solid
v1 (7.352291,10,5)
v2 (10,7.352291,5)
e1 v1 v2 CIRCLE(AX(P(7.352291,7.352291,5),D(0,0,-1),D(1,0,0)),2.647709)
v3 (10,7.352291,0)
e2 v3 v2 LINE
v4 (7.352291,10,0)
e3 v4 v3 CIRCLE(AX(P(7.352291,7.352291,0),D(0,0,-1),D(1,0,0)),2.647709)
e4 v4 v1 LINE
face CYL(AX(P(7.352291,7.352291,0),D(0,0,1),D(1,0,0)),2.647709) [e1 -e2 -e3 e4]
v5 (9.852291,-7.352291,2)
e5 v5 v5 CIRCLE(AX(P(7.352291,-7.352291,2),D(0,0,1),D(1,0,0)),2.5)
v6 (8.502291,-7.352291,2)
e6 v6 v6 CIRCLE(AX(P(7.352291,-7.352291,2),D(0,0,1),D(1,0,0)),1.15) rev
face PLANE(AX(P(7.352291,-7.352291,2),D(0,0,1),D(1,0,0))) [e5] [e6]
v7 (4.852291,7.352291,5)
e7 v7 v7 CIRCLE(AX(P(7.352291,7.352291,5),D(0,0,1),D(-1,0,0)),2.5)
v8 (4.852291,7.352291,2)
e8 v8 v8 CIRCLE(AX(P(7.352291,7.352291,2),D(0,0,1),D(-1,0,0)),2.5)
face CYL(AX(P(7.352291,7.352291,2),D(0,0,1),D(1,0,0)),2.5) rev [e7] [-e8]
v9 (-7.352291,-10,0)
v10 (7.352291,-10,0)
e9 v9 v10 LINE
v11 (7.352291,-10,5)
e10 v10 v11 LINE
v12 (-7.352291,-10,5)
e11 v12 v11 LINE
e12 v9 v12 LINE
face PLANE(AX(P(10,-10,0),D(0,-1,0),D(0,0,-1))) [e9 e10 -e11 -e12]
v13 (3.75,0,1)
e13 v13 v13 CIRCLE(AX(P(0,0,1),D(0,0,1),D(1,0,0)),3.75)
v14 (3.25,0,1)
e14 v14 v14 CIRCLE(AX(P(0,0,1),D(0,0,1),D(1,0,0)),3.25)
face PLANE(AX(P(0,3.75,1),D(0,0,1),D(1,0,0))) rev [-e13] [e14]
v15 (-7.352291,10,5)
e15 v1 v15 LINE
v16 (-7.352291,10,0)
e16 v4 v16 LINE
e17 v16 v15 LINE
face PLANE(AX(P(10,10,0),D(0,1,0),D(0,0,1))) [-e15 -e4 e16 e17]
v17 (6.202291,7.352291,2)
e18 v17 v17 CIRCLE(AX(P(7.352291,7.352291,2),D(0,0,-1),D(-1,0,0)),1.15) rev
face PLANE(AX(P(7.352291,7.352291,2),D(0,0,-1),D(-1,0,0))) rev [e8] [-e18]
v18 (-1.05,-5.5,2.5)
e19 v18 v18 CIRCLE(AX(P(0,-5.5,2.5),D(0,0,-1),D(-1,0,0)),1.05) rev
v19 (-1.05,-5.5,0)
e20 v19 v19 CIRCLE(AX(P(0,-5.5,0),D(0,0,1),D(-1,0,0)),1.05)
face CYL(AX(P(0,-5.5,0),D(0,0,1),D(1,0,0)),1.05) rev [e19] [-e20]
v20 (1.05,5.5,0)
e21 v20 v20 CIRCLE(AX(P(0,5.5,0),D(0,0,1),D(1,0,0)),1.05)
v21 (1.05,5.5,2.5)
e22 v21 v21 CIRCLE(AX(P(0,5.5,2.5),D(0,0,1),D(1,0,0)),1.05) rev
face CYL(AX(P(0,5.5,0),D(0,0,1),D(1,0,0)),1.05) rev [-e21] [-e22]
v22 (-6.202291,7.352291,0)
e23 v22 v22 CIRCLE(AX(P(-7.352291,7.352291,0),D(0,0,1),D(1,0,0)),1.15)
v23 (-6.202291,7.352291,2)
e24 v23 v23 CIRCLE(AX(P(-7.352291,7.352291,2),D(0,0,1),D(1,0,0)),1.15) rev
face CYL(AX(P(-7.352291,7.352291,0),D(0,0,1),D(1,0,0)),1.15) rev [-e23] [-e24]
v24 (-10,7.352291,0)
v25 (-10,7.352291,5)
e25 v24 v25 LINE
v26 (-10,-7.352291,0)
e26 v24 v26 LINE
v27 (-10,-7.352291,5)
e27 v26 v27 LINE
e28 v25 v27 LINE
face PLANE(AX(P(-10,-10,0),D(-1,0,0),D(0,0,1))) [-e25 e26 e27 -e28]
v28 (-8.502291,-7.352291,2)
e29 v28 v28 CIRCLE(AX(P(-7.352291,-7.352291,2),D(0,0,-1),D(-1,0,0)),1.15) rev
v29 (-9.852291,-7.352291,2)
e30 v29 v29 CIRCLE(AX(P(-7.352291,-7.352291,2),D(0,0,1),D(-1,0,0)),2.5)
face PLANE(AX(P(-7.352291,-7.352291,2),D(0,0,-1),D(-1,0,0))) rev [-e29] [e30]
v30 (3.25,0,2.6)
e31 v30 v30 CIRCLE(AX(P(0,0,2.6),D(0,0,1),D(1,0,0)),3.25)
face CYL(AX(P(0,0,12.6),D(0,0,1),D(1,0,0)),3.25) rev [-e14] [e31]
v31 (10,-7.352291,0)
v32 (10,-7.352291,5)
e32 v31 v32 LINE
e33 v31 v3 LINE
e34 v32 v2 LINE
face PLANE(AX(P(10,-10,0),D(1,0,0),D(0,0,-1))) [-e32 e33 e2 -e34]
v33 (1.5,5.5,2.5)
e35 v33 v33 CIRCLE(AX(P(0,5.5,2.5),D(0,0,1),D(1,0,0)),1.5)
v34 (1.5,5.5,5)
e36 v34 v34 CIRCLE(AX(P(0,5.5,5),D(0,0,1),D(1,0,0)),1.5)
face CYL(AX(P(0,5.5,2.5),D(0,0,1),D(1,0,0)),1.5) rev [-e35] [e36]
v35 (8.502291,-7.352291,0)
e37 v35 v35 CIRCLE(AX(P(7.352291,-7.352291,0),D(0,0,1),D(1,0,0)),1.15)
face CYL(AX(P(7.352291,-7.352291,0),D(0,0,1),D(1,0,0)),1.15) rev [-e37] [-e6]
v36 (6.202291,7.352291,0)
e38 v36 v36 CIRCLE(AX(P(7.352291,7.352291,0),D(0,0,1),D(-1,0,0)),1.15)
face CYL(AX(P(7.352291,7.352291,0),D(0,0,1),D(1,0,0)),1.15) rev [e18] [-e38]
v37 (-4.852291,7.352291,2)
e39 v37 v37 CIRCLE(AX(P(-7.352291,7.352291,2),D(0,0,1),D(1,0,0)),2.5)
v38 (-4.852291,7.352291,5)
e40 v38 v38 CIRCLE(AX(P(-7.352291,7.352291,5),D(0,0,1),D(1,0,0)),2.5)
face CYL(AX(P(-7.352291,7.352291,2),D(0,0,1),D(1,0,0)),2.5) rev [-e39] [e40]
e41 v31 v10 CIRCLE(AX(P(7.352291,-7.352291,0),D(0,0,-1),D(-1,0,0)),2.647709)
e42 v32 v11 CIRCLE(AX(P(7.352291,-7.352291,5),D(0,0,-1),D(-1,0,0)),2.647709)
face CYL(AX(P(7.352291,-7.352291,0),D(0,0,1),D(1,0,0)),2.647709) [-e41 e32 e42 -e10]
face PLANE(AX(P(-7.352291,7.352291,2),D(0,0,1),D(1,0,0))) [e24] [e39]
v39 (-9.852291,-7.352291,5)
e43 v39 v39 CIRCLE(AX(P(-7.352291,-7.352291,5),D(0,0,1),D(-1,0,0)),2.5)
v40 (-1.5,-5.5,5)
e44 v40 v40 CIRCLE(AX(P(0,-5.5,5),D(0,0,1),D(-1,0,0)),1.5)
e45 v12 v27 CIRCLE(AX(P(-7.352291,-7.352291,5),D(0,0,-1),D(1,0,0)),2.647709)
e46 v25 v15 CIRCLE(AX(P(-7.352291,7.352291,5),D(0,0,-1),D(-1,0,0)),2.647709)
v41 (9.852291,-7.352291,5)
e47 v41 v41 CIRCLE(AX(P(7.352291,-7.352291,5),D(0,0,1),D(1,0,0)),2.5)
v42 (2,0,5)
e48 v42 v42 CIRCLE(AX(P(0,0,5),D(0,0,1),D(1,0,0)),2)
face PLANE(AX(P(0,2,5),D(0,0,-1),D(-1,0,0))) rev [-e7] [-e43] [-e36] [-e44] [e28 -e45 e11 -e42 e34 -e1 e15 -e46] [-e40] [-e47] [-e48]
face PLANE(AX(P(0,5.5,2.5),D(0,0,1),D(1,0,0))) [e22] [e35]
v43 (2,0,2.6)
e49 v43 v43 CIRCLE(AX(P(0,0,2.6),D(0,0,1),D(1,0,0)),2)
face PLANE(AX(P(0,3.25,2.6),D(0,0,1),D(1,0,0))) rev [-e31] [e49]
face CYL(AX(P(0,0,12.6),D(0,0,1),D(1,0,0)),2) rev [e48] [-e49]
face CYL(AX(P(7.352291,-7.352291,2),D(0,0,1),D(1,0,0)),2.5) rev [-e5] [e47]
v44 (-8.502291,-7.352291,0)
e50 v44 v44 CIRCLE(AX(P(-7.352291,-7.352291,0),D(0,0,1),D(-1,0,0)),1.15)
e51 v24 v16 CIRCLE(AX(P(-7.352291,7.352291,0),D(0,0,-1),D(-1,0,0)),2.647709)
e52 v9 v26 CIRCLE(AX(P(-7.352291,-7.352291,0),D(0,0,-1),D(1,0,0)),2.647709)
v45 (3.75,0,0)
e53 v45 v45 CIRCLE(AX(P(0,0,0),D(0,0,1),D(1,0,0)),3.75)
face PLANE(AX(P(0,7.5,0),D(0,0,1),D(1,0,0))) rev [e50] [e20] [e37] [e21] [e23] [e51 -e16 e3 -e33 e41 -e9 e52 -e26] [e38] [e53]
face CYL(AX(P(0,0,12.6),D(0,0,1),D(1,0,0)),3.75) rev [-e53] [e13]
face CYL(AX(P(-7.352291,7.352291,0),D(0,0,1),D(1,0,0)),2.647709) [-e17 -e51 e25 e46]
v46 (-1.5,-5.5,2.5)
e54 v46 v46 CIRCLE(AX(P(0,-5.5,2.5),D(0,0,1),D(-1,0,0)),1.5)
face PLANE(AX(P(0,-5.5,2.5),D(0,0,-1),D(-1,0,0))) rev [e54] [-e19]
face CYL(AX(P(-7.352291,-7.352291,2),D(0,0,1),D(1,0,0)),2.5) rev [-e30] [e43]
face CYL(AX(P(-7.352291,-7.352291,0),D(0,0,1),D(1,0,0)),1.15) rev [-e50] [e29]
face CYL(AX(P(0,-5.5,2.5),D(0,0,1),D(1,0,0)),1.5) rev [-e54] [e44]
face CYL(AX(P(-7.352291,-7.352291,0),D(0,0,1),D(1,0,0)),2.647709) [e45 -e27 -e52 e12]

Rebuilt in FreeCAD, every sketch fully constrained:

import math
import FreeCAD as App
import Part
import Sketcher

doc = App.newDocument("Part")
params = doc.addObject("Spreadsheet::Sheet", "Params")
for row, (alias, value) in enumerate([
    ("sketch1_height", "1 mm"),
    ("sketch1_height2", "5 mm"),
    ("sketch1_width", "5.5 mm"),
    ("sketch1_width2", "0.5 mm"),
    ("sketch1_height3", "2.4 mm"),
    ("revolution_angle", "360 deg"),
    ("sketch2_diameter", "15 mm"),
    ("sketch2_width", "20 mm"),
    ("pad1_length", "5 mm"),
    ("sketch3_diameter", "2.1 mm"),
    ("sketch4_diameter", "3 mm"),
    ("pocket2_length", "2.5 mm"),
    ("sketch6_diameter", "2.3 mm"),
    ("sketch7_diameter", "5 mm"),
    ("pocket5_length", "3 mm"),
], start=1):
    params.set(f"A{row}", alias)
    params.set(f"B{row}", "=" + value)
    params.setAlias(f"B{row}", alias)

body = doc.addObject("PartDesign::Body", "Body")

sketch1 = body.newObject("Sketcher::SketchObject", "Sketch")
sketch1.AttachmentSupport = (doc.getObject("YZ_Plane"), [""])
sketch1.MapMode = "FlatFace"
sketch1.addGeometry([
    Part.LineSegment(App.Vector(3.8, 1, 0), App.Vector(3.8, 0, 0)),
    Part.LineSegment(App.Vector(3.8, 0, 0), App.Vector(7.5, 0, 0)),
    Part.LineSegment(App.Vector(7.5, 0, 0), App.Vector(7.5, 5, 0)),
    Part.LineSegment(App.Vector(7.5, 5, 0), App.Vector(2, 5, 0)),
    Part.LineSegment(App.Vector(2, 5, 0), App.Vector(2, 2.6, 0)),
    Part.LineSegment(App.Vector(2, 2.6, 0), App.Vector(3.2, 2.6, 0)),
    Part.LineSegment(App.Vector(3.2, 2.6, 0), App.Vector(3.2, 1, 0)),
    Part.LineSegment(App.Vector(3.2, 1, 0), App.Vector(3.8, 1, 0)),
], False)
sketch1.addConstraint([
    Sketcher.Constraint("Coincident", 0, 2, 1, 1),
    Sketcher.Constraint("Coincident", 1, 2, 2, 1),
    Sketcher.Constraint("Coincident", 2, 2, 3, 1),
    Sketcher.Constraint("Coincident", 3, 2, 4, 1),
    Sketcher.Constraint("Coincident", 4, 2, 5, 1),
    Sketcher.Constraint("Coincident", 5, 2, 6, 1),
    Sketcher.Constraint("Coincident", 6, 2, 7, 1),
    Sketcher.Constraint("Coincident", 7, 2, 0, 1),
    Sketcher.Constraint("Vertical", 0),
    Sketcher.Constraint("Horizontal", 1),
    Sketcher.Constraint("Vertical", 2),
    Sketcher.Constraint("Horizontal", 3),
    Sketcher.Constraint("Vertical", 4),
    Sketcher.Constraint("Horizontal", 5),
    Sketcher.Constraint("Vertical", 6),
    Sketcher.Constraint("Horizontal", 7),
    Sketcher.Constraint("PointOnObject", 0, 2, -1),
    Sketcher.Constraint("DistanceY", 0, 2, 0, 1, 1.0),
    Sketcher.Constraint("DistanceY", 2, 1, 2, 2, 5.0),
    Sketcher.Constraint("DistanceX", 3, 2, 3, 1, 5.5),
    Sketcher.Constraint("DistanceX", 7, 1, 7, 2, 0.5),
    Sketcher.Constraint("DistanceY", 4, 2, 4, 1, 2.4),
    Sketcher.Constraint("DistanceX", -1, 1, 3, 2, 2.0),
    Sketcher.Constraint("DistanceX", 1, 1, 1, 2, 3.75),
])
sketch1.setExpression("Constraints[17]", "Params.sketch1_height")
sketch1.setExpression("Constraints[18]", "Params.sketch1_height2")
sketch1.setExpression("Constraints[19]", "Params.sketch1_width")
sketch1.setExpression("Constraints[20]", "Params.sketch1_width2")
sketch1.setExpression("Constraints[21]", "Params.sketch1_height3")
revolution = body.newObject("PartDesign::Revolution", "Revolution")
revolution.Profile = sketch1
revolution.ReferenceAxis = (sketch1, ["V_Axis"])
revolution.setExpression("Angle", "Params.revolution_angle")

sketch2 = body.newObject("Sketcher::SketchObject", "Sketch001")
sketch2.AttachmentSupport = (doc.getObject("XY_Plane"), [""])
sketch2.MapMode = "FlatFace"
sketch2.AttachmentOffset = App.Placement(App.Vector(0, 0, 5), App.Rotation())
sketch2.addGeometry([
    Part.LineSegment(App.Vector(-10, 10, 0), App.Vector(-10, -10, 0)),
    Part.LineSegment(App.Vector(-10, -10, 0), App.Vector(10, -10, 0)),
    Part.LineSegment(App.Vector(10, -10, 0), App.Vector(10, 10, 0)),
    Part.LineSegment(App.Vector(10, 10, 0), App.Vector(-10, 10, 0)),
    Part.Circle(App.Vector(0, 0, 0), App.Vector(0, 0, 1), 8),
], False)
sketch2.addConstraint([
    Sketcher.Constraint("Coincident", 0, 2, 1, 1),
    Sketcher.Constraint("Coincident", 1, 2, 2, 1),
    Sketcher.Constraint("Coincident", 2, 2, 3, 1),
    Sketcher.Constraint("Coincident", 3, 2, 0, 1),
    Sketcher.Constraint("Vertical", 0),
    Sketcher.Constraint("Horizontal", 1),
    Sketcher.Constraint("Vertical", 2),
    Sketcher.Constraint("Horizontal", 3),
    Sketcher.Constraint("Coincident", 4, 3, -1, 1),
    Sketcher.Constraint("Symmetric", 0, 2, 2, 2, -1, 1),
    Sketcher.Constraint("Equal", 3, 0),
    Sketcher.Constraint("Diameter", 4, 15.0),
    Sketcher.Constraint("DistanceX", 1, 1, 1, 2, 20.0),
])
sketch2.setExpression("Constraints[11]", "Params.sketch2_diameter")
sketch2.setExpression("Constraints[12]", "Params.sketch2_width")
pad1 = body.newObject("PartDesign::Pad", "Pad")
pad1.Profile = sketch2
pad1.setExpression("Length", "Params.pad1_length")
pad1.Reversed = True

sketch3 = body.newObject("Sketcher::SketchObject", "Sketch002")
sketch3.AttachmentSupport = (doc.getObject("XY_Plane"), [""])
sketch3.MapMode = "FlatFace"
sketch3.AttachmentOffset = App.Placement(App.Vector(0, 0, 5), App.Rotation())
sketch3.addGeometry([
    Part.Circle(App.Vector(0, 5.5, 0), App.Vector(0, 0, 1), 1.1),
    Part.Circle(App.Vector(0, -5.5, 0), App.Vector(0, 0, 1), 1.1),
], False)
sketch3.addConstraint([
    Sketcher.Constraint("Equal", 0, 1),
    Sketcher.Constraint("Symmetric", 0, 3, 1, 3, -1, 1),
    Sketcher.Constraint("PointOnObject", 0, 3, -2),
    Sketcher.Constraint("Diameter", 0, 2.1),
    Sketcher.Constraint("DistanceY", 1, 3, 0, 3, 11.0),
])
sketch3.setExpression("Constraints[3]", "Params.sketch3_diameter")
pocket1 = body.newObject("PartDesign::Pocket", "Pocket")
pocket1.Profile = sketch3
pocket1.Type = "ThroughAll"

sketch4 = body.newObject("Sketcher::SketchObject", "Sketch003")
sketch4.AttachmentSupport = (doc.getObject("XY_Plane"), [""])
sketch4.MapMode = "FlatFace"
sketch4.AttachmentOffset = App.Placement(App.Vector(0, 0, 5), App.Rotation())
sketch4.addGeometry([
    Part.Circle(App.Vector(0, 5.5, 0), App.Vector(0, 0, 1), 1.5),
    Part.Circle(App.Vector(0, -5.5, 0), App.Vector(0, 0, 1), 1.5),
], False)
sketch4.addConstraint([
    Sketcher.Constraint("Equal", 0, 1),
    Sketcher.Constraint("Symmetric", 0, 3, 1, 3, -1, 1),
    Sketcher.Constraint("PointOnObject", 0, 3, -2),
    Sketcher.Constraint("Diameter", 0, 3.0),
    Sketcher.Constraint("DistanceY", 1, 3, 0, 3, 11.0),
])
sketch4.setExpression("Constraints[3]", "Params.sketch4_diameter")
pocket2 = body.newObject("PartDesign::Pocket", "Pocket001")
pocket2.Profile = sketch4
pocket2.setExpression("Length", "Params.pocket2_length")

sketch5 = body.newObject("Sketcher::SketchObject", "Sketch004")
sketch5.AttachmentSupport = (doc.getObject("XY_Plane"), [""])
sketch5.MapMode = "FlatFace"
sketch5.AttachmentOffset = App.Placement(App.Vector(0, 0, 5), App.Rotation())
sketch5.addGeometry([
    Part.LineSegment(App.Vector(-10.9, 7.4, 0), App.Vector(-10, 7.4, 0)),
    Part.ArcOfCircle(Part.Circle(App.Vector(-7.4, 7.4, 0), App.Vector(0, 0, 1), 2.6), math.radians(90), math.radians(180)),
    Part.LineSegment(App.Vector(-7.4, 10, 0), App.Vector(-7.4, 10.9, 0)),
    Part.LineSegment(App.Vector(-7.4, 10.9, 0), App.Vector(-10.9, 10.9, 0)),
    Part.LineSegment(App.Vector(-10.9, 10.9, 0), App.Vector(-10.9, 7.4, 0)),
    Part.LineSegment(App.Vector(7.4, 10.9, 0), App.Vector(7.4, 10, 0)),
    Part.ArcOfCircle(Part.Circle(App.Vector(7.4, 7.4, 0), App.Vector(0, 0, 1), 2.6), math.radians(0), math.radians(90)),
    Part.LineSegment(App.Vector(10, 7.4, 0), App.Vector(10.9, 7.4, 0)),
    Part.LineSegment(App.Vector(10.9, 7.4, 0), App.Vector(10.9, 10.9, 0)),
    Part.LineSegment(App.Vector(10.9, 10.9, 0), App.Vector(7.4, 10.9, 0)),
    Part.LineSegment(App.Vector(10.9, -7.4, 0), App.Vector(10, -7.4, 0)),
    Part.ArcOfCircle(Part.Circle(App.Vector(7.4, -7.4, 0), App.Vector(0, 0, 1), 2.6), math.radians(-90), math.radians(0)),
    Part.LineSegment(App.Vector(7.4, -10, 0), App.Vector(7.4, -10.9, 0)),
    Part.LineSegment(App.Vector(7.4, -10.9, 0), App.Vector(10.9, -10.9, 0)),
    Part.LineSegment(App.Vector(10.9, -10.9, 0), App.Vector(10.9, -7.4, 0)),
    Part.LineSegment(App.Vector(-7.4, -10.9, 0), App.Vector(-7.4, -10, 0)),
    Part.ArcOfCircle(Part.Circle(App.Vector(-7.4, -7.4, 0), App.Vector(0, 0, 1), 2.6), math.radians(180), math.radians(270)),
    Part.LineSegment(App.Vector(-10, -7.4, 0), App.Vector(-10.9, -7.4, 0)),
    Part.LineSegment(App.Vector(-10.9, -7.4, 0), App.Vector(-10.9, -10.9, 0)),
    Part.LineSegment(App.Vector(-10.9, -10.9, 0), App.Vector(-7.4, -10.9, 0)),
], False)
sketch5.addConstraint([
    Sketcher.Constraint("Coincident", 0, 2, 1, 2),
    Sketcher.Constraint("Coincident", 1, 1, 2, 1),
    Sketcher.Constraint("Coincident", 2, 2, 3, 1),
    Sketcher.Constraint("Coincident", 3, 2, 4, 1),
    Sketcher.Constraint("Coincident", 4, 2, 0, 1),
    Sketcher.Constraint("Coincident", 5, 2, 6, 2),
    Sketcher.Constraint("Coincident", 6, 1, 7, 1),
    Sketcher.Constraint("Coincident", 7, 2, 8, 1),
    Sketcher.Constraint("Coincident", 8, 2, 9, 1),
    Sketcher.Constraint("Coincident", 9, 2, 5, 1),
    Sketcher.Constraint("Coincident", 10, 2, 11, 2),
    Sketcher.Constraint("Coincident", 11, 1, 12, 1),
    Sketcher.Constraint("Coincident", 12, 2, 13, 1),
    Sketcher.Constraint("Coincident", 13, 2, 14, 1),
    Sketcher.Constraint("Coincident", 14, 2, 10, 1),
    Sketcher.Constraint("Coincident", 15, 2, 16, 2),
    Sketcher.Constraint("Coincident", 16, 1, 17, 1),
    Sketcher.Constraint("Coincident", 17, 2, 18, 1),
    Sketcher.Constraint("Coincident", 18, 2, 19, 1),
    Sketcher.Constraint("Coincident", 19, 2, 15, 1),
    Sketcher.Constraint("Horizontal", 0),
    Sketcher.Constraint("Vertical", 2),
    Sketcher.Constraint("Horizontal", 3),
    Sketcher.Constraint("Vertical", 4),
    Sketcher.Constraint("Vertical", 5),
    Sketcher.Constraint("Horizontal", 7),
    Sketcher.Constraint("Vertical", 8),
    Sketcher.Constraint("Horizontal", 9),
    Sketcher.Constraint("Horizontal", 10),
    Sketcher.Constraint("Vertical", 12),
    Sketcher.Constraint("Horizontal", 13),
    Sketcher.Constraint("Vertical", 14),
    Sketcher.Constraint("Vertical", 15),
    Sketcher.Constraint("Horizontal", 17),
    Sketcher.Constraint("Vertical", 18),
    Sketcher.Constraint("Horizontal", 19),
    Sketcher.Constraint("Equal", 1, 6),
    Sketcher.Constraint("Equal", 6, 11),
    Sketcher.Constraint("Equal", 11, 16),
    Sketcher.Constraint("Symmetric", 1, 3, 11, 3, -1, 1),
    Sketcher.Constraint("Symmetric", 6, 3, 16, 3, -1, 1),
    Sketcher.Constraint("Symmetric", 2, 2, 12, 2, -1, 1),
    Sketcher.Constraint("Symmetric", 4, 2, 14, 2, -1, 1),
    Sketcher.Constraint("Symmetric", 7, 2, 17, 2, -1, 1),
    Sketcher.Constraint("Symmetric", 9, 2, 19, 2, -1, 1),
    Sketcher.Constraint("Symmetric", 1, 3, 6, 3, -2),
    Sketcher.Constraint("Symmetric", 4, 2, 7, 2, -2),
    Sketcher.Constraint("Symmetric", 2, 2, 9, 2, -2),
    Sketcher.Constraint("Horizontal", 6, 3, 0, 2),
    Sketcher.Constraint("Vertical", 16, 3, 1, 1),
    Sketcher.Constraint("Equal", 17, 2),
    Sketcher.Constraint("DistanceX", 0, 2, -1, 1, 10.0),
    Sketcher.Constraint("DistanceY", -1, 1, 1, 1, 10.0),
    Sketcher.Constraint("Radius", 1, 2.647709),
    Sketcher.Constraint("DistanceX", 0, 1, 0, 2, 0.887825),
])
pocket3 = body.newObject("PartDesign::Pocket", "Pocket002")
pocket3.Profile = sketch5
pocket3.Type = "ThroughAll"

sketch6 = body.newObject("Sketcher::SketchObject", "Sketch005")
sketch6.AttachmentSupport = (doc.getObject("XY_Plane"), [""])
sketch6.MapMode = "FlatFace"
sketch6.AttachmentOffset = App.Placement(App.Vector(0, 0, 5), App.Rotation())
sketch6.addGeometry([
    Part.Circle(App.Vector(-7.4, 7.4, 0), App.Vector(0, 0, 1), 1.1),
    Part.Circle(App.Vector(7.4, 7.4, 0), App.Vector(0, 0, 1), 1.1),
    Part.Circle(App.Vector(7.4, -7.4, 0), App.Vector(0, 0, 1), 1.1),
    Part.Circle(App.Vector(-7.4, -7.4, 0), App.Vector(0, 0, 1), 1.1),
], False)
sketch6.addConstraint([
    Sketcher.Constraint("Equal", 0, 1),
    Sketcher.Constraint("Equal", 1, 2),
    Sketcher.Constraint("Equal", 2, 3),
    Sketcher.Constraint("Symmetric", 0, 3, 2, 3, -1, 1),
    Sketcher.Constraint("Symmetric", 1, 3, 3, 3, -1, 1),
    Sketcher.Constraint("Symmetric", 0, 3, 1, 3, -2),
    Sketcher.Constraint("Diameter", 0, 2.3),
    Sketcher.Constraint("DistanceX", 0, 3, -1, 1, 7.352291),
    Sketcher.Constraint("DistanceY", -1, 1, 0, 3, 7.352291),
])
sketch6.setExpression("Constraints[6]", "Params.sketch6_diameter")
pocket4 = body.newObject("PartDesign::Pocket", "Pocket003")
pocket4.Profile = sketch6
pocket4.Type = "ThroughAll"

sketch7 = body.newObject("Sketcher::SketchObject", "Sketch006")
sketch7.AttachmentSupport = (doc.getObject("XY_Plane"), [""])
sketch7.MapMode = "FlatFace"
sketch7.AttachmentOffset = App.Placement(App.Vector(0, 0, 5), App.Rotation())
sketch7.addGeometry([
    Part.Circle(App.Vector(-7.4, 7.4, 0), App.Vector(0, 0, 1), 2.5),
    Part.Circle(App.Vector(7.4, 7.4, 0), App.Vector(0, 0, 1), 2.5),
    Part.Circle(App.Vector(7.4, -7.4, 0), App.Vector(0, 0, 1), 2.5),
    Part.Circle(App.Vector(-7.4, -7.4, 0), App.Vector(0, 0, 1), 2.5),
], False)
sketch7.addConstraint([
    Sketcher.Constraint("Equal", 0, 1),
    Sketcher.Constraint("Equal", 1, 2),
    Sketcher.Constraint("Equal", 2, 3),
    Sketcher.Constraint("Symmetric", 0, 3, 2, 3, -1, 1),
    Sketcher.Constraint("Symmetric", 1, 3, 3, 3, -1, 1),
    Sketcher.Constraint("Symmetric", 0, 3, 1, 3, -2),
    Sketcher.Constraint("Diameter", 0, 5.0),
    Sketcher.Constraint("DistanceX", 0, 3, -1, 1, 7.352291),
    Sketcher.Constraint("DistanceY", -1, 1, 0, 3, 7.352291),
])
sketch7.setExpression("Constraints[6]", "Params.sketch7_diameter")
pocket5 = body.newObject("PartDesign::Pocket", "Pocket004")
pocket5.Profile = sketch7
pocket5.setExpression("Length", "Params.pocket5_length")

doc.recompute()
